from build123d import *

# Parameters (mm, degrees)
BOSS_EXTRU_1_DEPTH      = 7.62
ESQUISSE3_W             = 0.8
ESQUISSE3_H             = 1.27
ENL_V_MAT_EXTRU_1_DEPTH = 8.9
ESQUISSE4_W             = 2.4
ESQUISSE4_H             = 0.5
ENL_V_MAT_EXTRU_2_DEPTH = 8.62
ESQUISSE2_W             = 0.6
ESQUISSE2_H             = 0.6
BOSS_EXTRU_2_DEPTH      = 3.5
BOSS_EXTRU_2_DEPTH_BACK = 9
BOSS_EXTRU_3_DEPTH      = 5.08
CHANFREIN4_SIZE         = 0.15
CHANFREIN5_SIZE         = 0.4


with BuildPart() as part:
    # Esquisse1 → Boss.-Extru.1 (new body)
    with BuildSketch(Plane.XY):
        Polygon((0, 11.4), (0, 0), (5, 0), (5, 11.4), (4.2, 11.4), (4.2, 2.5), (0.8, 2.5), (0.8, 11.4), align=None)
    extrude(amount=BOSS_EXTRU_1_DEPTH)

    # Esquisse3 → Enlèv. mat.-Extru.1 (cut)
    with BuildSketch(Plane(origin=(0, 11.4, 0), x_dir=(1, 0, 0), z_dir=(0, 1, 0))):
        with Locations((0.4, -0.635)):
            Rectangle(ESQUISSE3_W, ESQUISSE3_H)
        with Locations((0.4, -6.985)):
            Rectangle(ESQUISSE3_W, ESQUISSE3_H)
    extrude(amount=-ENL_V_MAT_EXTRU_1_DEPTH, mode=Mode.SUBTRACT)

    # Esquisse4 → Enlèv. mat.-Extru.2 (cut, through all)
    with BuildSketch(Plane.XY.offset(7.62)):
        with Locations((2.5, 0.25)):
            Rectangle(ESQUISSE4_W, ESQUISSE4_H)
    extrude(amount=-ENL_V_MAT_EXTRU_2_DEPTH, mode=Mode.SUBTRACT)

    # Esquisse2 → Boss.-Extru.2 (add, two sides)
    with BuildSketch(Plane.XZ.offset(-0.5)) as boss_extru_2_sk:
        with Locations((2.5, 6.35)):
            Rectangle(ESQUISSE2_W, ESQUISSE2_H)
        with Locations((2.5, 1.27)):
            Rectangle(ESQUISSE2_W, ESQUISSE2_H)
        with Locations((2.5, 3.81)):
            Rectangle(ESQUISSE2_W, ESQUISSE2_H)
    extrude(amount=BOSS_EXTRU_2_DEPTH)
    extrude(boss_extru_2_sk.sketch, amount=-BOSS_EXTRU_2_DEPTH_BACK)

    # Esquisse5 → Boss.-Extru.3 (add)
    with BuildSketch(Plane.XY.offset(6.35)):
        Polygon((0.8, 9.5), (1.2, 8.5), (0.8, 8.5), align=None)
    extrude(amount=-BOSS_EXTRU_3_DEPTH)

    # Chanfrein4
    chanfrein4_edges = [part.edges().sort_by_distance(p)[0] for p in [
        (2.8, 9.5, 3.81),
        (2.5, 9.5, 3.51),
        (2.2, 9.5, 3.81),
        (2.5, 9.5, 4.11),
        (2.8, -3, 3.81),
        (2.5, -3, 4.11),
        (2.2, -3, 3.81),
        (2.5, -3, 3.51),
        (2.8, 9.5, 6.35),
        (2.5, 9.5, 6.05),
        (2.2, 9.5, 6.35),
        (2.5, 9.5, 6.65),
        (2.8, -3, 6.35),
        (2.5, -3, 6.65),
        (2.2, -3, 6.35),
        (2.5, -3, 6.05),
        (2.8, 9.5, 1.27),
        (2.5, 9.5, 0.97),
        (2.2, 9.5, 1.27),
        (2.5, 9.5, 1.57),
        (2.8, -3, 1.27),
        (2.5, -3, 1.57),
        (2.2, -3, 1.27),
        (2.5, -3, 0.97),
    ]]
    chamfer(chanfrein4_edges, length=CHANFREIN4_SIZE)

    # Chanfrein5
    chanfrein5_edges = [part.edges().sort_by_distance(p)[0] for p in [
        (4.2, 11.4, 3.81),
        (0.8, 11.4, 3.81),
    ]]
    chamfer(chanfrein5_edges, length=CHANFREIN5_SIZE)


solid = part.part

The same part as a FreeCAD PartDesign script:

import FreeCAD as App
import Part
import Sketcher
Q = App.Units.Quantity


def edges_at(feature, points):
    """Names of the edges that pass closest to the given points."""
    edges = feature.Shape.Edges
    near = lambda p: min(range(len(edges)), key=lambda i: edges[i].distToShape(Part.Vertex(*p))[0])
    return sorted({f"Edge{near(p) + 1}" for p in points})

doc = App.newDocument("Part")
body = doc.addObject("PartDesign::Body", "Body")

# Sketch on XY plane
sketch1 = doc.addObject("Sketcher::SketchObject", "Sketch")
body.addObject(sketch1)
sketch1.AttachmentSupport = (doc.XY_Plane, [""])
sketch1.MapMode = "FlatFace"
sketch1.addGeometry([
    Part.LineSegment(App.Vector(0, 11.4, 0), App.Vector(0, 0, 0)),  # 0
    Part.LineSegment(App.Vector(0, 0, 0), App.Vector(5, 0, 0)),  # 1
    Part.LineSegment(App.Vector(5, 0, 0), App.Vector(5, 11.4, 0)),  # 2
    Part.LineSegment(App.Vector(5, 11.4, 0), App.Vector(4.2, 11.4, 0)),  # 3
    Part.LineSegment(App.Vector(4.2, 11.4, 0), App.Vector(4.2, 2.5, 0)),  # 4
    Part.LineSegment(App.Vector(4.2, 2.5, 0), App.Vector(0.8, 2.5, 0)),  # 5
    Part.LineSegment(App.Vector(0.8, 2.5, 0), App.Vector(0.8, 11.4, 0)),  # 6
    Part.LineSegment(App.Vector(0.8, 11.4, 0), App.Vector(0, 11.4, 0)),  # 7
], False)
sketch1.addConstraint([
    Sketcher.Constraint("Coincident", 0, 2, 1, 1),
    Sketcher.Constraint("Coincident", 1, 2, 2, 1),
    Sketcher.Constraint("Coincident", 2, 2, 3, 1),
    Sketcher.Constraint("Coincident", 3, 2, 4, 1),
    Sketcher.Constraint("Coincident", 4, 2, 5, 1),
    Sketcher.Constraint("Coincident", 5, 2, 6, 1),
    Sketcher.Constraint("Coincident", 6, 2, 7, 1),
    Sketcher.Constraint("Coincident", 7, 2, 0, 1),
    Sketcher.Constraint("Vertical", 0),
    Sketcher.Constraint("Horizontal", 1),
    Sketcher.Constraint("Vertical", 2),
    Sketcher.Constraint("Horizontal", 3),
    Sketcher.Constraint("Vertical", 4),
    Sketcher.Constraint("Horizontal", 5),
    Sketcher.Constraint("Vertical", 6),
    Sketcher.Constraint("Horizontal", 7),
    Sketcher.Constraint("Coincident", 0, 2, -1, 1),
    Sketcher.Constraint("Horizontal", 3, 2, 6, 2),
    Sketcher.Constraint("Equal", 3, 7),
    Sketcher.Constraint("DistanceX", 1, 1, 1, 2, Q("5 mm")),
    Sketcher.Constraint("DistanceX", 3, 2, 3, 1, Q("0.8 mm")),
    Sketcher.Constraint("DistanceY", 0, 2, 0, 1, Q("11.4 mm")),
    Sketcher.Constraint("DistanceY", 4, 2, 4, 1, Q("8.9 mm")),
])
pad1 = doc.addObject("PartDesign::Pad", "Pad")
body.addObject(pad1)
pad1.Profile = sketch1
pad1.Length = 7.62

# Sketch on XZ plane
sketch2 = doc.addObject("Sketcher::SketchObject", "Sketch001")
body.addObject(sketch2)
sketch2.AttachmentSupport = (doc.XZ_Plane, [""])
sketch2.MapMode = "FlatFace"
sketch2.AttachmentOffset = App.Placement(App.Vector(0, 0, -11.4), App.Rotation())
sketch2.addGeometry([
    Part.LineSegment(App.Vector(0, 0, 0), App.Vector(0, 1.3, 0)),  # 0
    Part.LineSegment(App.Vector(0, 1.3, 0), App.Vector(0.8, 1.3, 0)),  # 1
    Part.LineSegment(App.Vector(0.8, 1.3, 0), App.Vector(0.8, 0, 0)),  # 2
    Part.LineSegment(App.Vector(0.8, 0, 0), App.Vector(0, 0, 0)),  # 3
    Part.LineSegment(App.Vector(0, 6.3, 0), App.Vector(0, 7.6, 0)),  # 4
    Part.LineSegment(App.Vector(0, 7.6, 0), App.Vector(0.8, 7.6, 0)),  # 5
    Part.LineSegment(App.Vector(0.8, 7.6, 0), App.Vector(0.8, 6.3, 0)),  # 6
    Part.LineSegment(App.Vector(0.8, 6.3, 0), App.Vector(0, 6.3, 0)),  # 7
], False)
sketch2.addConstraint([
    Sketcher.Constraint("Coincident", 0, 2, 1, 1),
    Sketcher.Constraint("Coincident", 1, 2, 2, 1),
    Sketcher.Constraint("Coincident", 2, 2, 3, 1),
    Sketcher.Constraint("Coincident", 3, 2, 0, 1),
    Sketcher.Constraint("Coincident", 4, 2, 5, 1),
    Sketcher.Constraint("Coincident", 5, 2, 6, 1),
    Sketcher.Constraint("Coincident", 6, 2, 7, 1),
    Sketcher.Constraint("Coincident", 7, 2, 4, 1),
    Sketcher.Constraint("Vertical", 0),
    Sketcher.Constraint("Horizontal", 1),
    Sketcher.Constraint("Vertical", 2),
    Sketcher.Constraint("Horizontal", 3),
    Sketcher.Constraint("Vertical", 4),
    Sketcher.Constraint("Horizontal", 5),
    Sketcher.Constraint("Vertical", 6),
    Sketcher.Constraint("Horizontal", 7),
    Sketcher.Constraint("Coincident", 3, 2, -1, 1),
    Sketcher.Constraint("PointOnObject", 4, 2, -2),
    Sketcher.Constraint("Vertical", 2, 2, 5, 2),
    Sketcher.Constraint("Equal", 2, 4),
    Sketcher.Constraint("DistanceX", 1, 1, 1, 2, Q("0.8 mm")),
    Sketcher.Constraint("DistanceY", 0, 1, 0, 2, Q("1.27 mm")),
    Sketcher.Constraint("DistanceY", -1, 1, 4, 2, Q("7.62 mm")),
])
pocket1 = doc.addObject("PartDesign::Pocket", "Pocket")
body.addObject(pocket1)
pocket1.Profile = sketch2
pocket1.Length = 8.9
pocket1.Reversed = True

# Sketch on XY plane
sketch3 = doc.addObject("Sketcher::SketchObject", "Sketch002")
body.addObject(sketch3)
sketch3.AttachmentSupport = (doc.XY_Plane, [""])
sketch3.MapMode = "FlatFace"
sketch3.AttachmentOffset = App.Placement(App.Vector(0, 0, 7.62), App.Rotation())
sketch3.addGeometry([
    Part.LineSegment(App.Vector(1.3, 0.5, 0), App.Vector(1.3, 0, 0)),
    Part.LineSegment(App.Vector(1.3, 0, 0), App.Vector(3.7, 0, 0)),
    Part.LineSegment(App.Vector(3.7, 0, 0), App.Vector(3.7, 0.5, 0)),
    Part.LineSegment(App.Vector(3.7, 0.5, 0), App.Vector(1.3, 0.5, 0)),
], False)
sketch3.addConstraint([
    Sketcher.Constraint("Coincident", 0, 2, 1, 1),
    Sketcher.Constraint("Coincident", 1, 2, 2, 1),
    Sketcher.Constraint("Coincident", 2, 2, 3, 1),
    Sketcher.Constraint("Coincident", 3, 2, 0, 1),
    Sketcher.Constraint("Vertical", 0),
    Sketcher.Constraint("Horizontal", 1),
    Sketcher.Constraint("Vertical", 2),
    Sketcher.Constraint("Horizontal", 3),
    Sketcher.Constraint("PointOnObject", 0, 2, -1),
    Sketcher.Constraint("DistanceX", 1, 1, 1, 2, Q("2.4 mm")),
    Sketcher.Constraint("DistanceY", 0, 2, 0, 1, Q("0.5 mm")),
    Sketcher.Constraint("DistanceX", -1, 1, 0, 2, Q("1.3 mm")),
])
pocket2 = doc.addObject("PartDesign::Pocket", "Pocket001")
body.addObject(pocket2)
pocket2.Profile = sketch3
pocket2.Type = "ThroughAll"

# Sketch on XZ plane
sketch4 = doc.addObject("Sketcher::SketchObject", "Sketch003")
body.addObject(sketch4)
sketch4.AttachmentSupport = (doc.XZ_Plane, [""])
sketch4.MapMode = "FlatFace"
sketch4.AttachmentOffset = App.Placement(App.Vector(0, 0, -0.5), App.Rotation())
sketch4.addGeometry([
    Part.LineSegment(App.Vector(2.2, 6.7, 0), App.Vector(2.2, 6, 0)),  # 0
    Part.LineSegment(App.Vector(2.2, 6, 0), App.Vector(2.8, 6, 0)),  # 1
    Part.LineSegment(App.Vector(2.8, 6, 0), App.Vector(2.8, 6.7, 0)),  # 2
    Part.LineSegment(App.Vector(2.8, 6.7, 0), App.Vector(2.2, 6.7, 0)),  # 3
    Part.LineSegment(App.Vector(2.2, 1.6, 0), App.Vector(2.2, 1, 0)),  # 4
    Part.LineSegment(App.Vector(2.2, 1, 0), App.Vector(2.8, 1, 0)),  # 5
    Part.LineSegment(App.Vector(2.8, 1, 0), App.Vector(2.8, 1.6, 0)),  # 6
    Part.LineSegment(App.Vector(2.8, 1.6, 0), App.Vector(2.2, 1.6, 0)),  # 7
    Part.LineSegment(App.Vector(2.2, 4.1, 0), App.Vector(2.2, 3.5, 0)),  # 8
    Part.LineSegment(App.Vector(2.2, 3.5, 0), App.Vector(2.8, 3.5, 0)),  # 9
    Part.LineSegment(App.Vector(2.8, 3.5, 0), App.Vector(2.8, 4.1, 0)),  # 10
    Part.LineSegment(App.Vector(2.8, 4.1, 0), App.Vector(2.2, 4.1, 0)),  # 11
], False)
sketch4.addConstraint([
    Sketcher.Constraint("Coincident", 0, 2, 1, 1),
    Sketcher.Constraint("Coincident", 1, 2, 2, 1),
    Sketcher.Constraint("Coincident", 2, 2, 3, 1),
    Sketcher.Constraint("Coincident", 3, 2, 0, 1),
    Sketcher.Constraint("Coincident", 4, 2, 5, 1),
    Sketcher.Constraint("Coincident", 5, 2, 6, 1),
    Sketcher.Constraint("Coincident", 6, 2, 7, 1),
    Sketcher.Constraint("Coincident", 7, 2, 4, 1),
    Sketcher.Constraint("Coincident", 8, 2, 9, 1),
    Sketcher.Constraint("Coincident", 9, 2, 10, 1),
    Sketcher.Constraint("Coincident", 10, 2, 11, 1),
    Sketcher.Constraint("Coincident", 11, 2, 8, 1),
    Sketcher.Constraint("Vertical", 0),
    Sketcher.Constraint("Horizontal", 1),
    Sketcher.Constraint("Vertical", 2),
    Sketcher.Constraint("Horizontal", 3),
    Sketcher.Constraint("Vertical", 4),
    Sketcher.Constraint("Horizontal", 5),
    Sketcher.Constraint("Vertical", 6),
    Sketcher.Constraint("Horizontal", 7),
    Sketcher.Constraint("Vertical", 8),
    Sketcher.Constraint("Horizontal", 9),
    Sketcher.Constraint("Vertical", 10),
    Sketcher.Constraint("Horizontal", 11),
    Sketcher.Constraint("Vertical", 3, 2, 4, 2),
    Sketcher.Constraint("Vertical", 2, 2, 5, 2),
    Sketcher.Constraint("Vertical", 7, 2, 8, 2),
    Sketcher.Constraint("Vertical", 6, 2, 9, 2),
    Sketcher.Constraint("Equal", 11, 0),
    Sketcher.Constraint("Equal", 2, 4),
    Sketcher.Constraint("Equal", 6, 8),
    Sketcher.Constraint("DistanceX", 1, 1, 1, 2, Q("0.6 mm")),
    Sketcher.Constraint("DistanceX", -1, 1, 0, 2, Q("2.2 mm")),
    Sketcher.Constraint("DistanceY", -1, 1, 0, 2, Q("6.05 mm")),
    Sketcher.Constraint("DistanceY", -1, 1, 4, 2, Q("0.97 mm")),
    Sketcher.Constraint("DistanceY", -1, 1, 8, 2, Q("3.51 mm")),
])
pad2 = doc.addObject("PartDesign::Pad", "Pad001")
body.addObject(pad2)
pad2.Profile = sketch4
pad2.Type = "TwoLengths"
pad2.Length = 3.5
pad2.Length2 = 9

# Sketch on XY plane
sketch5 = doc.addObject("Sketcher::SketchObject", "Sketch004")
body.addObject(sketch5)
sketch5.AttachmentSupport = (doc.XY_Plane, [""])
sketch5.MapMode = "FlatFace"
sketch5.AttachmentOffset = App.Placement(App.Vector(0, 0, 6.35), App.Rotation())
sketch5.addGeometry([
    Part.LineSegment(App.Vector(1.2, 8.5, 0), App.Vector(0.8, 9.5, 0)),
    Part.LineSegment(App.Vector(0.8, 9.5, 0), App.Vector(0.8, 8.5, 0)),
    Part.LineSegment(App.Vector(0.8, 8.5, 0), App.Vector(1.2, 8.5, 0)),
], False)
sketch5.addConstraint([
    Sketcher.Constraint("Coincident", 0, 2, 1, 1),
    Sketcher.Constraint("Coincident", 1, 2, 2, 1),
    Sketcher.Constraint("Coincident", 2, 2, 0, 1),
    Sketcher.Constraint("Vertical", 1),
    Sketcher.Constraint("Horizontal", 2),
    Sketcher.Constraint("DistanceY", 1, 2, 1, 1, Q("1 mm")),
    Sketcher.Constraint("DistanceX", 2, 1, 2, 2, Q("0.4 mm")),
    Sketcher.Constraint("DistanceX", -1, 1, 0, 2, Q("0.8 mm")),
    Sketcher.Constraint("DistanceY", -1, 1, 0, 2, Q("9.5 mm")),
])
pad3 = doc.addObject("PartDesign::Pad", "Pad002")
body.addObject(pad3)
pad3.Profile = sketch5
pad3.Length = 5.08
pad3.Reversed = True
doc.recompute()

chamfer = doc.addObject("PartDesign::Chamfer", "Chamfer")
body.addObject(chamfer)
chamfer.Base = (pad3, edges_at(pad3, [
    (2.8, 9.5, 3.81),
    (2.5, 9.5, 3.51),
    (2.2, 9.5, 3.81),
    (2.5, 9.5, 4.11),
    (2.8, -3, 3.81),
    (2.5, -3, 4.11),
    (2.2, -3, 3.81),
    (2.5, -3, 3.51),
    (2.8, 9.5, 6.35),
    (2.5, 9.5, 6.05),
    (2.2, 9.5, 6.35),
    (2.5, 9.5, 6.65),
    (2.8, -3, 6.35),
    (2.5, -3, 6.65),
    (2.2, -3, 6.35),
    (2.5, -3, 6.05),
    (2.8, 9.5, 1.27),
    (2.5, 9.5, 0.97),
    (2.2, 9.5, 1.27),
    (2.5, 9.5, 1.57),
    (2.8, -3, 1.27),
    (2.5, -3, 1.57),
    (2.2, -3, 1.27),
    (2.5, -3, 0.97),
]))
chamfer.Size = 0.15
doc.recompute()

chamfer2 = doc.addObject("PartDesign::Chamfer", "Chamfer001")
body.addObject(chamfer2)
chamfer2.Base = (chamfer, edges_at(chamfer, [(4.2, 11.4, 3.81), (0.8, 11.4, 3.81)]))
chamfer2.Size = 0.4

doc.recompute()
